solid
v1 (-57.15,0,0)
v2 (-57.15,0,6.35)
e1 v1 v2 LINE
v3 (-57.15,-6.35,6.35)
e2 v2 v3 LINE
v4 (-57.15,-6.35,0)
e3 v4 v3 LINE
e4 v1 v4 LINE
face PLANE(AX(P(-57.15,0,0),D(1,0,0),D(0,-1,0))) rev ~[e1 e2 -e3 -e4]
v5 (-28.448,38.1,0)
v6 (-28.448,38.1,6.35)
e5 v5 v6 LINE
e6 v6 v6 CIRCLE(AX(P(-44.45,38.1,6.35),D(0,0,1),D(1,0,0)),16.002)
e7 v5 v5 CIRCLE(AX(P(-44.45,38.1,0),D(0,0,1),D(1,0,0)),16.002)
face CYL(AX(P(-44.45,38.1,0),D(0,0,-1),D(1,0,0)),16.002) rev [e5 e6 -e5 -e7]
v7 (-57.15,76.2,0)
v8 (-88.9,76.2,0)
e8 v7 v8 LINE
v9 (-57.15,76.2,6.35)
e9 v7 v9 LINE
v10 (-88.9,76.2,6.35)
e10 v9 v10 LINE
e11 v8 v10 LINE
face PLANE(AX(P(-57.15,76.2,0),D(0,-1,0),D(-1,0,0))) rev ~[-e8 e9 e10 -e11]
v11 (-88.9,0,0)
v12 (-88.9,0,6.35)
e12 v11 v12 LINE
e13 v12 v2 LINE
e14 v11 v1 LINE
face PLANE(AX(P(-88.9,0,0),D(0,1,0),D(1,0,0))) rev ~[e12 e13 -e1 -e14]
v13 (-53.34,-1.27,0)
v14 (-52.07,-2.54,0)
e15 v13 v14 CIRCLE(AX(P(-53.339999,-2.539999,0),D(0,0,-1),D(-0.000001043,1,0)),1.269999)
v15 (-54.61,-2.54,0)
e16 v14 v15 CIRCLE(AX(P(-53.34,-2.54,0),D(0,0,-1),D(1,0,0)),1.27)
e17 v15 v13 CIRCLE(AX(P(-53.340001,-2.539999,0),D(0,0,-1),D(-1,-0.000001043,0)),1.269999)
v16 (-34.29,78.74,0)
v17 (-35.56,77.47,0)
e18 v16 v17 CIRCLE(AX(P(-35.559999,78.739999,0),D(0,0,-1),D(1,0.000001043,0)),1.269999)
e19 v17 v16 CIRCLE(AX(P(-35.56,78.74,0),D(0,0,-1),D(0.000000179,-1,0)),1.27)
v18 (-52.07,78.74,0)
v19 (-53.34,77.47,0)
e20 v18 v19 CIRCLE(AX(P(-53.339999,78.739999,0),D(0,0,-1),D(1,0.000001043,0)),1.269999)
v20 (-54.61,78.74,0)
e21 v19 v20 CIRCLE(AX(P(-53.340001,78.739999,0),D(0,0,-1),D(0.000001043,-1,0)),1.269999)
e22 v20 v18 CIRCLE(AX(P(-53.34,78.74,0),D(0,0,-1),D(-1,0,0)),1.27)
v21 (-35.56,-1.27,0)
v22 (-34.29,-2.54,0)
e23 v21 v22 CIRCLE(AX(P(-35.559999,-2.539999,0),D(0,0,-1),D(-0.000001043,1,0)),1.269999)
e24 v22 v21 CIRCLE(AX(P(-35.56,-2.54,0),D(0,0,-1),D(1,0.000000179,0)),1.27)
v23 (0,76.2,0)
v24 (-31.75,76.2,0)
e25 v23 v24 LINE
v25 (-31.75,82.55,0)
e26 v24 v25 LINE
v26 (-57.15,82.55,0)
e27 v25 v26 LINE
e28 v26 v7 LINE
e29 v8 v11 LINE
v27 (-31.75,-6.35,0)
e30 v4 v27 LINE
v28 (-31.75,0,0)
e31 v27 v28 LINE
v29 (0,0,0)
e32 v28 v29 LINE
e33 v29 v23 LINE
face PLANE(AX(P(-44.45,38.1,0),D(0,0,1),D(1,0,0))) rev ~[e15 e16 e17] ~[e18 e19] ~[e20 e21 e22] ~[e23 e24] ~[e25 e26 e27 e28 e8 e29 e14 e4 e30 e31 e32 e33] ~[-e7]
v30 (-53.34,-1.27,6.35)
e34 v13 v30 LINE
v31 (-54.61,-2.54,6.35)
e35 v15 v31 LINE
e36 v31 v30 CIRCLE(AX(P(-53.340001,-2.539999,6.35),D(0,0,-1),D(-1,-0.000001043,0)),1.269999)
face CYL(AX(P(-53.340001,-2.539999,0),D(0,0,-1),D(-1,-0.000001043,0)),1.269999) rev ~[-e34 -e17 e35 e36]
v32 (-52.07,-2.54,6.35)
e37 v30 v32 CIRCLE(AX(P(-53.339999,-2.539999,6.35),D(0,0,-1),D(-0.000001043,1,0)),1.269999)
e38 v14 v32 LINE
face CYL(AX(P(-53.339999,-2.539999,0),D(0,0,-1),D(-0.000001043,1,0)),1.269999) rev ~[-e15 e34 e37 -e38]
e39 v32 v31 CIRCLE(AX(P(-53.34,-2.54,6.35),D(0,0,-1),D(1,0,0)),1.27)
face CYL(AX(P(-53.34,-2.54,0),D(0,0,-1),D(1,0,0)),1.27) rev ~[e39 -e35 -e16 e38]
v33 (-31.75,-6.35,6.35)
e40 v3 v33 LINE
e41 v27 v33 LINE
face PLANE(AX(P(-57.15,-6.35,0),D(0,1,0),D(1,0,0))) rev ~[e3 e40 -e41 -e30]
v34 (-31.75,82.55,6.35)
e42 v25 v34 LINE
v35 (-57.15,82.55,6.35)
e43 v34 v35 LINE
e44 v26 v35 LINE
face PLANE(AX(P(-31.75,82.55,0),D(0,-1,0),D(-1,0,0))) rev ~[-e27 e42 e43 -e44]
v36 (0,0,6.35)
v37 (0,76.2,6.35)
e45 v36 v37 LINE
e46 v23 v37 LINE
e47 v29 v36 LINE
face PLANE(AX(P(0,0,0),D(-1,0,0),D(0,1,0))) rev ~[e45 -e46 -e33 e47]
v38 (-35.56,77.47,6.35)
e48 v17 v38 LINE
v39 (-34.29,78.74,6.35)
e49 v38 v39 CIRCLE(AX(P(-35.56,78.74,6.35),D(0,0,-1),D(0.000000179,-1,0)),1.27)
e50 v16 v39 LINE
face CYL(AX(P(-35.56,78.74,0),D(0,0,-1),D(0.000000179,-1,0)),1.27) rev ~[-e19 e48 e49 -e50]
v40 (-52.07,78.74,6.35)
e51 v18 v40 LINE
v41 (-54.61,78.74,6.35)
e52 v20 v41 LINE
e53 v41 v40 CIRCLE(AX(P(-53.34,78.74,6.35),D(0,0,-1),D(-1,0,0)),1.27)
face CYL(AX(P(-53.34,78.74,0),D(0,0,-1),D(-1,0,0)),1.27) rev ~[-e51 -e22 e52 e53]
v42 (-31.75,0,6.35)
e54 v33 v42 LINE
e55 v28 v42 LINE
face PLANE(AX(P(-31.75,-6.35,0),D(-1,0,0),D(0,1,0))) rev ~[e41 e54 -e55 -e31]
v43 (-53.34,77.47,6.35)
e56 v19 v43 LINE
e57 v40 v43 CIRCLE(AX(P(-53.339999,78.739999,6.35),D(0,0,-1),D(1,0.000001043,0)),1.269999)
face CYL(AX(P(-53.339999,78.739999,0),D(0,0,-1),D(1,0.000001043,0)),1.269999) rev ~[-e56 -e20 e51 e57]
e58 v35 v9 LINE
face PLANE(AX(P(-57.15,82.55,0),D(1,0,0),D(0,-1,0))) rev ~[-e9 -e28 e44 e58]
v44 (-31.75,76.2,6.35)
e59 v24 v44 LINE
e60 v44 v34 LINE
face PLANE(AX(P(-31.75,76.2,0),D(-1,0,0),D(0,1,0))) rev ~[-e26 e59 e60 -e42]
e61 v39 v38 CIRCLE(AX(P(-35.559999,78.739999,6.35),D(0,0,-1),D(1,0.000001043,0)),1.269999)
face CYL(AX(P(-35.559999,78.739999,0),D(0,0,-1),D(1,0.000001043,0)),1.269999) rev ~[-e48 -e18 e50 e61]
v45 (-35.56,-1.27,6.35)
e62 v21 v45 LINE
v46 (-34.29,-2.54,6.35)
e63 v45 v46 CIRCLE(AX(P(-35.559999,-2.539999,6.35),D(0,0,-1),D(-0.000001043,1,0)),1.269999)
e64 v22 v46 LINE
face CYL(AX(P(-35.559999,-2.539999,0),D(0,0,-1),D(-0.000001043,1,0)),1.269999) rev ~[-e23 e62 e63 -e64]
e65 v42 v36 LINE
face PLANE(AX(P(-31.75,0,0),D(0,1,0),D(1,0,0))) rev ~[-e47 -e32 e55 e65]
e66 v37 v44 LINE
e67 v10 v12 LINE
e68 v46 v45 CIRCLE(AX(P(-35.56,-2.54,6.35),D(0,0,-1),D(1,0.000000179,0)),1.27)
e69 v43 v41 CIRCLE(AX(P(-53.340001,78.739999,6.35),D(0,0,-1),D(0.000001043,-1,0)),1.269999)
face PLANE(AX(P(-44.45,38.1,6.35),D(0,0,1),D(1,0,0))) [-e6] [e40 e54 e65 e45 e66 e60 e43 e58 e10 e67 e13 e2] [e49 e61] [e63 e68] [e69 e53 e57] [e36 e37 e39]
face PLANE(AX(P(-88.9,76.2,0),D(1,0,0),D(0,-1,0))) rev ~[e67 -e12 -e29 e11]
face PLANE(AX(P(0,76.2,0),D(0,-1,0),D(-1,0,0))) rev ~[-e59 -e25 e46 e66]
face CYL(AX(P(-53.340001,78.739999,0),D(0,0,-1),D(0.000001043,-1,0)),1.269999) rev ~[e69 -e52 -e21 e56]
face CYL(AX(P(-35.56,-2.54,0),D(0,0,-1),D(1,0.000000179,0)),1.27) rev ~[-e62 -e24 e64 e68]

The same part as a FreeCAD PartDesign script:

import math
import FreeCAD as App
import Part
import Sketcher

V = App.Vector
Q = App.Units.Quantity

doc = App.newDocument("Part")
body = doc.addObject("PartDesign::Body", "Body")

sketch1 = doc.addObject("Sketcher::SketchObject", "Sketch")
body.addObject(sketch1)
sketch1.AttachmentSupport = (doc.XY_Plane, [""])
sketch1.MapMode = "FlatFace"
sketch1.addGeometry(Part.LineSegment(V(0, 0, 0), V(0, 76.2, 0)), False)
sketch1.addGeometry(Part.LineSegment(V(0, 76.2, 0), V(-31.75, 76.2, 0)), False)
sketch1.addGeometry(Part.LineSegment(V(-31.75, 76.2, 0), V(-31.75, 82.55, 0)), False)
sketch1.addGeometry(Part.LineSegment(V(-31.75, 82.55, 0), V(-57.15, 82.55, 0)), False)
sketch1.addGeometry(Part.LineSegment(V(-57.15, 82.55, 0), V(-57.15, 76.2, 0)), False)
sketch1.addGeometry(Part.LineSegment(V(-57.15, 76.2, 0), V(-88.9, 76.2, 0)), False)
sketch1.addGeometry(Part.LineSegment(V(-88.9, 76.2, 0), V(-88.9, 0, 0)), False)
sketch1.addGeometry(Part.LineSegment(V(-88.9, 0, 0), V(-57.15, 0, 0)), False)
sketch1.addGeometry(Part.LineSegment(V(-57.15, 0, 0), V(-57.15, -6.35, 0)), False)
sketch1.addGeometry(Part.LineSegment(V(-57.15, -6.35, 0), V(-31.75, -6.35, 0)), False)
sketch1.addGeometry(Part.LineSegment(V(-31.75, -6.35, 0), V(-31.75, 0, 0)), False)
sketch1.addGeometry(Part.LineSegment(V(-31.75, 0, 0), V(0, 0, 0)), False)
sketch1.addGeometry(Part.ArcOfCircle(Part.Circle(V(-53.339999, -2.539999, 0), V(0, 0, 1), 1.269999), math.radians(-0.00006), math.radians(90.00006)), False)
sketch1.addGeometry(Part.ArcOfCircle(Part.Circle(V(-53.34, -2.54, 0), V(0, 0, 1), 1.27), math.radians(180), math.radians(360)), False)
sketch1.addGeometry(Part.ArcOfCircle(Part.Circle(V(-53.340001, -2.539999, 0), V(0, 0, 1), 1.269999), math.radians(89.99994), math.radians(180.00006)), False)
sketch1.addGeometry(Part.ArcOfCircle(Part.Circle(V(-35.56, -2.54, 0), V(0, 0, 1), 1.27), math.radians(89.99999), math.radians(360.00001)), False)
sketch1.addGeometry(Part.ArcOfCircle(Part.Circle(V(-35.559999, -2.539999, 0), V(0, 0, 1), 1.269999), math.radians(-0.00006), math.radians(90.00006)), False)
sketch1.addGeometry(Part.ArcOfCircle(Part.Circle(V(-53.339999, 78.739999, 0), V(0, 0, 1), 1.269999), math.radians(-90.00006), math.radians(0.00006)), False)
sketch1.addGeometry(Part.ArcOfCircle(Part.Circle(V(-53.340001, 78.739999, 0), V(0, 0, 1), 1.269999), math.radians(179.99994), math.radians(270.00006)), False)
sketch1.addGeometry(Part.ArcOfCircle(Part.Circle(V(-53.34, 78.74, 0), V(0, 0, 1), 1.27), math.radians(0), math.radians(180)), False)
sketch1.addGeometry(Part.Circle(V(-44.45, 38.1, 0), V(0, 0, 1), 16.002), False)
sketch1.addGeometry(Part.ArcOfCircle(Part.Circle(V(-35.559999, 78.739999, 0), V(0, 0, 1), 1.269999), math.radians(-90.00006), math.radians(0.00006)), False)
sketch1.addGeometry(Part.ArcOfCircle(Part.Circle(V(-35.56, 78.74, 0), V(0, 0, 1), 1.27), math.radians(-0.00001), math.radians(270.00001)), False)
sketch1.addConstraint(Sketcher.Constraint("Coincident", 0, 2, 1, 1))
sketch1.addConstraint(Sketcher.Constraint("Coincident", 1, 2, 2, 1))
sketch1.addConstraint(Sketcher.Constraint("Coincident", 2, 2, 3, 1))
sketch1.addConstraint(Sketcher.Constraint("Coincident", 3, 2, 4, 1))
sketch1.addConstraint(Sketcher.Constraint("Coincident", 4, 2, 5, 1))
sketch1.addConstraint(Sketcher.Constraint("Coincident", 5, 2, 6, 1))
sketch1.addConstraint(Sketcher.Constraint("Coincident", 6, 2, 7, 1))
sketch1.addConstraint(Sketcher.Constraint("Coincident", 7, 2, 8, 1))
sketch1.addConstraint(Sketcher.Constraint("Coincident", 8, 2, 9, 1))
sketch1.addConstraint(Sketcher.Constraint("Coincident", 9, 2, 10, 1))
sketch1.addConstraint(Sketcher.Constraint("Coincident", 10, 2, 11, 1))
sketch1.addConstraint(Sketcher.Constraint("Coincident", 11, 2, 0, 1))
sketch1.addConstraint(Sketcher.Constraint("Tangent", 12, 1, 13, 2))
sketch1.addConstraint(Sketcher.Constraint("Tangent", 13, 1, 14, 2))
sketch1.addConstraint(Sketcher.Constraint("Coincident", 14, 1, 12, 2))
sketch1.addConstraint(Sketcher.Constraint("Tangent", 15, 1, 16, 2))
sketch1.addConstraint(Sketcher.Constraint("Coincident", 16, 1, 15, 2))
sketch1.addConstraint(Sketcher.Constraint("Coincident", 17, 1, 18, 2))
sketch1.addConstraint(Sketcher.Constraint("Tangent", 18, 1, 19, 2))
sketch1.addConstraint(Sketcher.Constraint("Tangent", 19, 1, 17, 2))
sketch1.addConstraint(Sketcher.Constraint("Tangent", 21, 1, 22, 2))
sketch1.addConstraint(Sketcher.Constraint("Coincident", 22, 1, 21, 2))
sketch1.addConstraint(Sketcher.Constraint("Vertical", 0))
sketch1.addConstraint(Sketcher.Constraint("Horizontal", 1))
sketch1.addConstraint(Sketcher.Constraint("Vertical", 2))
sketch1.addConstraint(Sketcher.Constraint("Horizontal", 3))
sketch1.addConstraint(Sketcher.Constraint("Vertical", 4))
sketch1.addConstraint(Sketcher.Constraint("Horizontal", 5))
sketch1.addConstraint(Sketcher.Constraint("Vertical", 6))
sketch1.addConstraint(Sketcher.Constraint("Horizontal", 7))
sketch1.addConstraint(Sketcher.Constraint("Vertical", 8))
sketch1.addConstraint(Sketcher.Constraint("Horizontal", 9))
sketch1.addConstraint(Sketcher.Constraint("Vertical", 10))
sketch1.addConstraint(Sketcher.Constraint("Horizontal", 11))
sketch1.addConstraint(Sketcher.Constraint("Coincident", 11, 2, -1, 1))
sketch1.addConstraint(Sketcher.Constraint("Equal", 12, 13))
sketch1.addConstraint(Sketcher.Constraint("Equal", 14, 15))
sketch1.addConstraint(Sketcher.Constraint("Equal", 16, 17))
sketch1.addConstraint(Sketcher.Constraint("Equal", 18, 19))
sketch1.addConstraint(Sketcher.Constraint("Equal", 19, 21))
sketch1.addConstraint(Sketcher.Constraint("PointOnObject", 6, 2, -1))
sketch1.addConstraint(Sketcher.Constraint("Horizontal", 14, 3, 15, 3))
sketch1.addConstraint(Sketcher.Constraint("Horizontal", 19, 3, 21, 3))
sketch1.addConstraint(Sketcher.Constraint("Horizontal", 1, 2, 4, 2))
sketch1.addConstraint(Sketcher.Constraint("Horizontal", 16, 3, 12, 1))
sketch1.addConstraint(Sketcher.Constraint("Horizontal", 12, 1, 13, 1))
sketch1.addConstraint(Sketcher.Constraint("Horizontal", 13, 1, 16, 1))
sketch1.addConstraint(Sketcher.Constraint("Horizontal", 22, 3, 18, 1))
sketch1.addConstraint(Sketcher.Constraint("Horizontal", 18, 1, 19, 1))
sketch1.addConstraint(Sketcher.Constraint("Horizontal", 19, 1, 22, 1))
sketch1.addConstraint(Sketcher.Constraint("Vertical", 13, 3, 17, 3))
sketch1.addConstraint(Sketcher.Constraint("Vertical", 16, 3, 21, 3))
sketch1.addConstraint(Sketcher.Constraint("Vertical", 4, 2, 7, 2))
sketch1.addConstraint(Sketcher.Constraint("Vertical", 2, 2, 9, 2))
sketch1.addConstraint(Sketcher.Constraint("Vertical", 19, 3, 14, 1))
sketch1.addConstraint(Sketcher.Constraint("Vertical", 22, 3, 15, 1))
sketch1.addConstraint(Sketcher.Constraint("Vertical", 14, 1, 17, 1))
sketch1.addConstraint(Sketcher.Constraint("Vertical", 15, 1, 21, 1))
sketch1.addConstraint(Sketcher.Constraint("Equal", 1, 5))
sketch1.addConstraint(Sketcher.Constraint("Equal", 4, 8))
sketch1.addConstraint(Sketcher.Constraint("Diameter", 20, Q("1.26 in")))
sketch1.addConstraint(Sketcher.Constraint("DistanceX", 3, 2, 3, 1, Q("1 in")))
sketch1.addConstraint(Sketcher.Constraint("DistanceY", 0, 1, 0, 2, Q("3 in")))
sketch1.addConstraint(Sketcher.Constraint("Radius", 12, Q("0.0499999 in")))
sketch1.addConstraint(Sketcher.Constraint("DistanceX", 1, 2, 1, 1, Q("1.25 in")))
sketch1.addConstraint(Sketcher.Constraint("DistanceY", 2, 1, 2, 2, Q("0.25 in")))
sketch1.addConstraint(Sketcher.Constraint("DistanceX", 12, 3, -1, 1, Q("2.0999999 in")))
sketch1.addConstraint(Sketcher.Constraint("DistanceY", 12, 3, -1, 1, Q("0.0999999 in")))
sketch1.addConstraint(Sketcher.Constraint("DistanceX", 15, 3, -1, 1, Q("1.4 in")))
sketch1.addConstraint(Sketcher.Constraint("DistanceY", -1, 1, 17, 3, Q("3.0999999 in")))
sketch1.addConstraint(Sketcher.Constraint("DistanceY", -1, 1, 20, 3, Q("1.5 in")))
sketch1.addConstraint(Sketcher.Constraint("DistanceX", 20, 3, -1, 1, Q("1.75 in")))
pad1 = doc.addObject("PartDesign::Pad", "Pad")
body.addObject(pad1)
pad1.Profile = sketch1
pad1.Length = Q("0.25 in")

doc.recompute()
